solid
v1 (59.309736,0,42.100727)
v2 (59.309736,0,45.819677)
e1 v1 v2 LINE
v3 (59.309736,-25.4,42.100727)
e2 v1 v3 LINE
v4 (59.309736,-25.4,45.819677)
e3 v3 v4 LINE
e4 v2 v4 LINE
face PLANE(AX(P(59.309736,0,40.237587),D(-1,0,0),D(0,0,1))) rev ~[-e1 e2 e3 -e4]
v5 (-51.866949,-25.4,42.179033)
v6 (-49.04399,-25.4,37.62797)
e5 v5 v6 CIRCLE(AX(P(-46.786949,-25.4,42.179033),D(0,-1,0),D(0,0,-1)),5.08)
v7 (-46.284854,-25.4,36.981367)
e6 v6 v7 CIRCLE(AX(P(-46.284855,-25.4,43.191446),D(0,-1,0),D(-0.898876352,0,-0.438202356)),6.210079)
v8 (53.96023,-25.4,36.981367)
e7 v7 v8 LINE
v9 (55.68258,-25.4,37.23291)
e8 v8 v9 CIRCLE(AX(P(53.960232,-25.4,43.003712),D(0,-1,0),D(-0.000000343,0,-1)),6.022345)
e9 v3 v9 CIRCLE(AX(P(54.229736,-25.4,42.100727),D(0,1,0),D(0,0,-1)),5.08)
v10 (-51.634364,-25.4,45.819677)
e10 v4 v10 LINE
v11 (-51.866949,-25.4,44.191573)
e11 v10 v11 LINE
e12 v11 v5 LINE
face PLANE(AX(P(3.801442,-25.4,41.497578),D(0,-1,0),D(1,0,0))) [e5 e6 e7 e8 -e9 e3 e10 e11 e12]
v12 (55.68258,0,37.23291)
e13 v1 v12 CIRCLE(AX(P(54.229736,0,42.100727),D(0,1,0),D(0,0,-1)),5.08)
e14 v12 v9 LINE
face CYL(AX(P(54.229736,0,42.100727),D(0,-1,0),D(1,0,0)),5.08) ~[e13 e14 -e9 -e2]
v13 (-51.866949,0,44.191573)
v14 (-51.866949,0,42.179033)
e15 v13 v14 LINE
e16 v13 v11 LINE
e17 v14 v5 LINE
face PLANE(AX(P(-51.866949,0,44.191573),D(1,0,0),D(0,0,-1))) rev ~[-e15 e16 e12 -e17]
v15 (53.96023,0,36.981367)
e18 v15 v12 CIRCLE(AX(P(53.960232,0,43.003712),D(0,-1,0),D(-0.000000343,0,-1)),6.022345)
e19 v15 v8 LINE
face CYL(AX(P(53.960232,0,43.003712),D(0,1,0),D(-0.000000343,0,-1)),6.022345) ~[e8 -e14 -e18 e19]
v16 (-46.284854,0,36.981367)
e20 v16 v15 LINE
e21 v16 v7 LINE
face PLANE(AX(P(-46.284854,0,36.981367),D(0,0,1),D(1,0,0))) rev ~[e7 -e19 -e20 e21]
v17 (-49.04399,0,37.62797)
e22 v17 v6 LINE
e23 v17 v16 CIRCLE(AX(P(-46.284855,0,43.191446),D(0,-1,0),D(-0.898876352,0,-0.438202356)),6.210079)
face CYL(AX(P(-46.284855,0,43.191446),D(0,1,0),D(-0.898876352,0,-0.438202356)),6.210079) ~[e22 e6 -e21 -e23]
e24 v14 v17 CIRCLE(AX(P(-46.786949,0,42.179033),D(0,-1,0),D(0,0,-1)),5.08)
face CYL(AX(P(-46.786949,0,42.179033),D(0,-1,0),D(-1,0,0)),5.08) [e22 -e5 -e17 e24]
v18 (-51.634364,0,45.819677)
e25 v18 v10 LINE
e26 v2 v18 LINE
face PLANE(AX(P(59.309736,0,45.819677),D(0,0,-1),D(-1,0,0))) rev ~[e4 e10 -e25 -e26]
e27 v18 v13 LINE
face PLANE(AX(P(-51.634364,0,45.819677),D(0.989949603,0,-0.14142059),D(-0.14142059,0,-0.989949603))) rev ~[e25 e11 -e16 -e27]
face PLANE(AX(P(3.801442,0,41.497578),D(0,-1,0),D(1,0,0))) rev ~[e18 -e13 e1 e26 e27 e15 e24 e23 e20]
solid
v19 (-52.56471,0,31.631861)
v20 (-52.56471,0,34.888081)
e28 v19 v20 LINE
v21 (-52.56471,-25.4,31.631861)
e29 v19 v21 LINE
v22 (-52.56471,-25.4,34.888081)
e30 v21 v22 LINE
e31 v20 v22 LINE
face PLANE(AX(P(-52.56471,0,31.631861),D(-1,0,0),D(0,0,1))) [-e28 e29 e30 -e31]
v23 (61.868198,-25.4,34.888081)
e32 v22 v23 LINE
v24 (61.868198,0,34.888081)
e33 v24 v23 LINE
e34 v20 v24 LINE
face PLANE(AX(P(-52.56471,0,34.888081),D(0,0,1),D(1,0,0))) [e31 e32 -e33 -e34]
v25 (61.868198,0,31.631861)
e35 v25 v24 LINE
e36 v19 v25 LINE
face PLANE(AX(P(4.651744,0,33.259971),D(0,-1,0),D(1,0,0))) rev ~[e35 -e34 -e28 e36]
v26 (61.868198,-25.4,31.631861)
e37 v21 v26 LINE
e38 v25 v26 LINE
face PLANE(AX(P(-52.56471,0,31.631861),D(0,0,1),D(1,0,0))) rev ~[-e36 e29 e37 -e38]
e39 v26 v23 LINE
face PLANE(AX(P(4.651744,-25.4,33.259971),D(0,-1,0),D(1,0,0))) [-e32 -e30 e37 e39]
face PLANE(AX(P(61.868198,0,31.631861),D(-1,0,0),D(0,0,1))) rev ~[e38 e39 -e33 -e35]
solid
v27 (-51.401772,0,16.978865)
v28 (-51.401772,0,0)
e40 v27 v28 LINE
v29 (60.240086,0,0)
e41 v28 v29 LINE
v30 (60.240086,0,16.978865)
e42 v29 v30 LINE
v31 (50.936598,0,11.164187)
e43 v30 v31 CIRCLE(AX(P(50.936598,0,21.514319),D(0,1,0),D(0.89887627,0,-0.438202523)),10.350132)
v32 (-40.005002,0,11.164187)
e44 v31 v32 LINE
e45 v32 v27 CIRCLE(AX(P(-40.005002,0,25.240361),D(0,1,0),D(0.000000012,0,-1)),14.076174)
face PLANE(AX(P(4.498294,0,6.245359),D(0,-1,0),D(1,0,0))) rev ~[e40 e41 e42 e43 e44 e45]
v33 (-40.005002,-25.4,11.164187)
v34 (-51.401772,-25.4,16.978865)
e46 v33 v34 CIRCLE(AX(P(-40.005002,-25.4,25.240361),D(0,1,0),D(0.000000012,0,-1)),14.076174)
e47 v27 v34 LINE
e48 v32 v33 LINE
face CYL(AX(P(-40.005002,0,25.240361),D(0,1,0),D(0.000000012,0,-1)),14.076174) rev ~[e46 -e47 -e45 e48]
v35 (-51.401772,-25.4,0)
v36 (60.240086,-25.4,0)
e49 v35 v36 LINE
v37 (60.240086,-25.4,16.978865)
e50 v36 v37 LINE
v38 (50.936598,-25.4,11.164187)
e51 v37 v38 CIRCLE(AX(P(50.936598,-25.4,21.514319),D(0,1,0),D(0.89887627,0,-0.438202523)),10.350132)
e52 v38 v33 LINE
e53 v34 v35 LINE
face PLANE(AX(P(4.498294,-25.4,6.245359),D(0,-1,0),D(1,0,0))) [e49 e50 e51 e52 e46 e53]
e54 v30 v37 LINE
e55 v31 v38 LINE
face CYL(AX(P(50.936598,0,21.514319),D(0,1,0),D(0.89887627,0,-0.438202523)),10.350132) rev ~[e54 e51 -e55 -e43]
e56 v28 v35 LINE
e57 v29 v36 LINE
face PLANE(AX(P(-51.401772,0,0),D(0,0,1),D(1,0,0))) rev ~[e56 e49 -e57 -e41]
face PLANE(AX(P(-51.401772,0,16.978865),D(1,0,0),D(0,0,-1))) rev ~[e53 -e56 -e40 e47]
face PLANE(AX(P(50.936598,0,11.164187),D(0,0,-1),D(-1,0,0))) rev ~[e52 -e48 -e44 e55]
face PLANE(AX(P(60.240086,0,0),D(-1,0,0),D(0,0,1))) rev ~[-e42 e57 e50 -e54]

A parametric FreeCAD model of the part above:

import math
import FreeCAD as App
import Part
import Sketcher
from FreeCAD import Vector
Q = App.Units.Quantity


def edges_at(feature, points):
    """Names of the edges that pass closest to the given points."""
    edges = feature.Shape.Edges
    near = lambda p: min(range(len(edges)), key=lambda i: edges[i].distToShape(Part.Vertex(*p))[0])
    return sorted({f"Edge{near(p) + 1}" for p in points})

doc = App.newDocument("Part")
body = doc.addObject("PartDesign::Body", "Body")
body.AllowCompound = True

sketch1 = doc.addObject("Sketcher::SketchObject", "Sketch")
body.addObject(sketch1)
sketch1.AttachmentSupport = (doc.XZ_Plane, [""])
sketch1.MapMode = "FlatFace"
sketch1.addGeometry([
    Part.LineSegment(Vector(-51.634364, 45.819677, 0), Vector(-51.866949, 44.191573, 0)),
    Part.LineSegment(Vector(-51.866949, 44.191573, 0), Vector(-51.866949, 40.470175, 0)),
    Part.ArcOfCircle(Part.Circle(Vector(-46.284855, 43.191446, 0), Vector(0, 0, 1), 6.210079), math.radians(-154.01076), math.radians(-89.999987)),
    Part.LineSegment(Vector(-46.284854, 36.981367, 0), Vector(53.96023, 36.981367, 0)),
    Part.ArcOfCircle(Part.Circle(Vector(53.960232, 43.003712, 0), Vector(0, 0, 1), 6.022345), math.radians(-90.00002), math.radians(-27.342611)),
    Part.LineSegment(Vector(59.309736, 40.237587, 0), Vector(59.309736, 45.819677, 0)),
    Part.LineSegment(Vector(59.309736, 45.819677, 0), Vector(-51.634364, 45.819677, 0)),
    Part.LineSegment(Vector(-52.56471, 34.888081, 0), Vector(-52.56471, 31.631861, 0)),
    Part.LineSegment(Vector(-52.56471, 31.631861, 0), Vector(61.868198, 31.631861, 0)),
    Part.LineSegment(Vector(61.868198, 31.631861, 0), Vector(61.868198, 34.888081, 0)),
    Part.LineSegment(Vector(61.868198, 34.888081, 0), Vector(-52.56471, 34.888081, 0)),
    Part.ArcOfCircle(Part.Circle(Vector(-40.005002, 25.240361, 0), Vector(0, 0, 1), 14.076174), math.radians(-144.061717), math.radians(-89.999999)),
    Part.LineSegment(Vector(-51.401772, 16.978865, 0), Vector(-51.401772, 0, 0)),
    Part.LineSegment(Vector(-51.401772, 0, 0), Vector(60.240086, 0, 0)),
    Part.LineSegment(Vector(60.240086, 0, 0), Vector(60.240086, 16.978865, 0)),
    Part.ArcOfCircle(Part.Circle(Vector(50.936598, 21.514319, 0), Vector(0, 0, 1), 10.350132), math.radians(-90), math.radians(-25.989251)),
    Part.LineSegment(Vector(50.936598, 11.164187, 0), Vector(-40.005002, 11.164187, 0)),
], False)
sketch1.addConstraint([
    Sketcher.Constraint("Coincident", 0, 2, 1, 1),
    Sketcher.Constraint("Coincident", 1, 2, 2, 1),
    Sketcher.Constraint("Tangent", 2, 2, 3, 1),
    Sketcher.Constraint("Tangent", 3, 2, 4, 1),
    Sketcher.Constraint("Coincident", 4, 2, 5, 1),
    Sketcher.Constraint("Coincident", 5, 2, 6, 1),
    Sketcher.Constraint("Coincident", 6, 2, 0, 1),
    Sketcher.Constraint("Coincident", 7, 2, 8, 1),
    Sketcher.Constraint("Coincident", 8, 2, 9, 1),
    Sketcher.Constraint("Coincident", 9, 2, 10, 1),
    Sketcher.Constraint("Coincident", 10, 2, 7, 1),
    Sketcher.Constraint("Coincident", 11, 1, 12, 1),
    Sketcher.Constraint("Coincident", 12, 2, 13, 1),
    Sketcher.Constraint("Coincident", 13, 2, 14, 1),
    Sketcher.Constraint("Coincident", 14, 2, 15, 2),
    Sketcher.Constraint("Tangent", 15, 1, 16, 1),
    Sketcher.Constraint("Tangent", 16, 2, 11, 2),
    Sketcher.Constraint("Vertical", 1),
    Sketcher.Constraint("Horizontal", 3),
    Sketcher.Constraint("Vertical", 5),
    Sketcher.Constraint("Horizontal", 6),
    Sketcher.Constraint("Vertical", 7),
    Sketcher.Constraint("Horizontal", 8),
    Sketcher.Constraint("Vertical", 9),
    Sketcher.Constraint("Horizontal", 10),
    Sketcher.Constraint("Vertical", 12),
    Sketcher.Constraint("Horizontal", 13),
    Sketcher.Constraint("Vertical", 14),
    Sketcher.Constraint("Horizontal", 16),
    Sketcher.Constraint("PointOnObject", 12, 2, -1),
    Sketcher.Constraint("Horizontal", 11, 1, 14, 2),
    Sketcher.Constraint("DistanceX", 11, 3, -1, 1, Q("1.5750001 in")),
    Sketcher.Constraint("Radius", 2, Q("6.210079 mm")),
    Sketcher.Constraint("Radius", 15, Q("10.350132 mm")),
    Sketcher.Constraint("DistanceX", 6, 2, 6, 1, Q("110.9441 mm")),
    Sketcher.Constraint("DistanceX", 16, 2, 16, 1, Q("90.9416 mm")),
    Sketcher.Constraint("DistanceY", 1, 2, 1, 1, Q("3.721398 mm")),
    Sketcher.Constraint("Radius", 4, Q("6.022345 mm")),
    Sketcher.Constraint("Radius", 11, Q("14.076174 mm")),
    Sketcher.Constraint("DistanceY", 11, 1, 2, 2, Q("0.7875001 in")),
    Sketcher.Constraint("DistanceX", 13, 1, 13, 2, Q("111.641858 mm")),
    Sketcher.Constraint("DistanceY", 5, 1, 5, 2, Q("5.58209 mm")),
    Sketcher.Constraint("DistanceY", 7, 2, 7, 1, Q("3.25622 mm")),
    Sketcher.Constraint("DistanceY", 11, 3, 7, 2, Q("6.3915 mm")),
    Sketcher.Constraint("DistanceX", 15, 3, 8, 2, Q("10.9316 mm")),
    Sketcher.Constraint("DistanceX", 3, 1, 3, 2, Q("100.245084 mm")),
    Sketcher.Constraint("DistanceX", 8, 1, 8, 2, Q("114.432908 mm")),
    Sketcher.Constraint("DistanceY", 12, 2, 12, 1, Q("16.978865 mm")),
    Sketcher.Constraint("DistanceX", 0, 2, -1, 1, Q("51.866949 mm")),
    Sketcher.Constraint("DistanceX", -1, 1, 3, 2, Q("53.96023 mm")),
    Sketcher.Constraint("DistanceY", 3, 2, 4, 2, Q("3.25622 mm")),
])
pad1 = doc.addObject("PartDesign::Pad", "Pad")
body.addObject(pad1)
pad1.Profile = sketch1
pad1.Length = Q("1 in")
doc.recompute()

fillet = doc.addObject("PartDesign::Fillet", "Fillet")
body.addObject(fillet)
fillet.Base = (pad1, edges_at(pad1, [(-51.867, -12.7, 40.47)]))
fillet.Radius = Q("0.2 in")
doc.recompute()

fillet2 = doc.addObject("PartDesign::Fillet", "Fillet001")
body.addObject(fillet2)
fillet2.Base = (fillet, edges_at(fillet, [(59.31, -12.7, 40.238)]))
fillet2.Radius = Q("0.2 in")

doc.recompute()
